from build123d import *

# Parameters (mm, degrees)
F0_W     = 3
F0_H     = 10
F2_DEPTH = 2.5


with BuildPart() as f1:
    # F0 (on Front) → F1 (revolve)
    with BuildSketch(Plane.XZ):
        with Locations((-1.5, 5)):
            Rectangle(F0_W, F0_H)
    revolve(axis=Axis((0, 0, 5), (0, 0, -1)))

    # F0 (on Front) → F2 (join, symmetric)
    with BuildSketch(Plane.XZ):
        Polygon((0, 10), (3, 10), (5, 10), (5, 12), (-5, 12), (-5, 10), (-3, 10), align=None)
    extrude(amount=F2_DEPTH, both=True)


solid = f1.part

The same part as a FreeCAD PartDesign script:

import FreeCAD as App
import Part
import Sketcher

V = App.Vector


def add_polygon(sketch, points):
    """Adds a closed chain of lines whose ends are joined by coincident constraints."""
    first, n = sketch.GeometryCount, len(points)
    for a, b in zip(points, points[1:] + points[:1]):
        sketch.addGeometry(Part.LineSegment(App.Vector(*a, 0), App.Vector(*b, 0)), False)
    for i in range(n):
        sketch.addConstraint(Sketcher.Constraint("Coincident", first + i, 2, first + (i + 1) % n, 1))

doc = App.newDocument("Part")
params = doc.addObject("Spreadsheet::Sheet", "Params")
for row, (alias, value) in enumerate([
    ("sketch1_width", "3 mm"),
    ("sketch1_height", "10 mm"),
    ("revolution_angle", "360 deg"),
    ("sketch2_width", "10 mm"),
    ("sketch2_height", "2 mm"),
    ("pad1_length", "5 mm"),
], start=1):
    params.set(f"A{row}", alias)
    params.set(f"B{row}", "=" + value)
    params.setAlias(f"B{row}", alias)

body = doc.addObject("PartDesign::Body", "Body")

# Sketch on XZ plane
sketch1 = doc.addObject("Sketcher::SketchObject", "Sketch")
body.addObject(sketch1)
sketch1.AttachmentSupport = (doc.XZ_Plane, [""])
sketch1.MapMode = "FlatFace"
add_polygon(sketch1, [(-3, 10), (-3, 0), (0, 0), (0, 10)])  # lines 0-3
sketch1.addConstraint(Sketcher.Constraint("Vertical", 0))
sketch1.addConstraint(Sketcher.Constraint("Horizontal", 1))
sketch1.addConstraint(Sketcher.Constraint("Vertical", 2))
sketch1.addConstraint(Sketcher.Constraint("Horizontal", 3))
sketch1.addConstraint(Sketcher.Constraint("Coincident", 1, 2, -1, 1))
sketch1.addConstraint(Sketcher.Constraint("DistanceX", 1, 1, 1, 2, 3.0))
sketch1.addConstraint(Sketcher.Constraint("DistanceY", 0, 2, 0, 1, 10.0))
sketch1.setExpression("Constraints[9]", "Params.sketch1_width")
sketch1.setExpression("Constraints[10]", "Params.sketch1_height")
revolution = doc.addObject("PartDesign::Revolution", "Revolution")
body.addObject(revolution)
revolution.Profile = sketch1
revolution.ReferenceAxis = (sketch1, ["V_Axis"])
revolution.setExpression("Angle", "Params.revolution_angle")

# Sketch on XZ plane
sketch2 = doc.addObject("Sketcher::SketchObject", "Sketch001")
body.addObject(sketch2)
sketch2.AttachmentSupport = (doc.XZ_Plane, [""])
sketch2.MapMode = "FlatFace"
add_polygon(sketch2, [(5, 10), (5, 12), (-5, 12), (-5, 10)])  # lines 0-3
sketch2.addConstraint(Sketcher.Constraint("Vertical", 0))
sketch2.addConstraint(Sketcher.Constraint("Horizontal", 1))
sketch2.addConstraint(Sketcher.Constraint("Vertical", 2))
sketch2.addConstraint(Sketcher.Constraint("Horizontal", 3))
sketch2.addConstraint(Sketcher.Constraint("DistanceX", 1, 2, 1, 1, 10.0))
sketch2.addConstraint(Sketcher.Constraint("DistanceY", 0, 1, 0, 2, 2.0))
sketch2.addConstraint(Sketcher.Constraint("DistanceX", -1, 1, 0, 2, 5.0))
sketch2.addConstraint(Sketcher.Constraint("DistanceY", -1, 1, 0, 2, 12.0))
sketch2.setExpression("Constraints[8]", "Params.sketch2_width")
sketch2.setExpression("Constraints[9]", "Params.sketch2_height")
pad1 = doc.addObject("PartDesign::Pad", "Pad")
body.addObject(pad1)
pad1.Profile = sketch2
pad1.setExpression("Length", "Params.pad1_length")
pad1.Midplane = True

doc.recompute()
